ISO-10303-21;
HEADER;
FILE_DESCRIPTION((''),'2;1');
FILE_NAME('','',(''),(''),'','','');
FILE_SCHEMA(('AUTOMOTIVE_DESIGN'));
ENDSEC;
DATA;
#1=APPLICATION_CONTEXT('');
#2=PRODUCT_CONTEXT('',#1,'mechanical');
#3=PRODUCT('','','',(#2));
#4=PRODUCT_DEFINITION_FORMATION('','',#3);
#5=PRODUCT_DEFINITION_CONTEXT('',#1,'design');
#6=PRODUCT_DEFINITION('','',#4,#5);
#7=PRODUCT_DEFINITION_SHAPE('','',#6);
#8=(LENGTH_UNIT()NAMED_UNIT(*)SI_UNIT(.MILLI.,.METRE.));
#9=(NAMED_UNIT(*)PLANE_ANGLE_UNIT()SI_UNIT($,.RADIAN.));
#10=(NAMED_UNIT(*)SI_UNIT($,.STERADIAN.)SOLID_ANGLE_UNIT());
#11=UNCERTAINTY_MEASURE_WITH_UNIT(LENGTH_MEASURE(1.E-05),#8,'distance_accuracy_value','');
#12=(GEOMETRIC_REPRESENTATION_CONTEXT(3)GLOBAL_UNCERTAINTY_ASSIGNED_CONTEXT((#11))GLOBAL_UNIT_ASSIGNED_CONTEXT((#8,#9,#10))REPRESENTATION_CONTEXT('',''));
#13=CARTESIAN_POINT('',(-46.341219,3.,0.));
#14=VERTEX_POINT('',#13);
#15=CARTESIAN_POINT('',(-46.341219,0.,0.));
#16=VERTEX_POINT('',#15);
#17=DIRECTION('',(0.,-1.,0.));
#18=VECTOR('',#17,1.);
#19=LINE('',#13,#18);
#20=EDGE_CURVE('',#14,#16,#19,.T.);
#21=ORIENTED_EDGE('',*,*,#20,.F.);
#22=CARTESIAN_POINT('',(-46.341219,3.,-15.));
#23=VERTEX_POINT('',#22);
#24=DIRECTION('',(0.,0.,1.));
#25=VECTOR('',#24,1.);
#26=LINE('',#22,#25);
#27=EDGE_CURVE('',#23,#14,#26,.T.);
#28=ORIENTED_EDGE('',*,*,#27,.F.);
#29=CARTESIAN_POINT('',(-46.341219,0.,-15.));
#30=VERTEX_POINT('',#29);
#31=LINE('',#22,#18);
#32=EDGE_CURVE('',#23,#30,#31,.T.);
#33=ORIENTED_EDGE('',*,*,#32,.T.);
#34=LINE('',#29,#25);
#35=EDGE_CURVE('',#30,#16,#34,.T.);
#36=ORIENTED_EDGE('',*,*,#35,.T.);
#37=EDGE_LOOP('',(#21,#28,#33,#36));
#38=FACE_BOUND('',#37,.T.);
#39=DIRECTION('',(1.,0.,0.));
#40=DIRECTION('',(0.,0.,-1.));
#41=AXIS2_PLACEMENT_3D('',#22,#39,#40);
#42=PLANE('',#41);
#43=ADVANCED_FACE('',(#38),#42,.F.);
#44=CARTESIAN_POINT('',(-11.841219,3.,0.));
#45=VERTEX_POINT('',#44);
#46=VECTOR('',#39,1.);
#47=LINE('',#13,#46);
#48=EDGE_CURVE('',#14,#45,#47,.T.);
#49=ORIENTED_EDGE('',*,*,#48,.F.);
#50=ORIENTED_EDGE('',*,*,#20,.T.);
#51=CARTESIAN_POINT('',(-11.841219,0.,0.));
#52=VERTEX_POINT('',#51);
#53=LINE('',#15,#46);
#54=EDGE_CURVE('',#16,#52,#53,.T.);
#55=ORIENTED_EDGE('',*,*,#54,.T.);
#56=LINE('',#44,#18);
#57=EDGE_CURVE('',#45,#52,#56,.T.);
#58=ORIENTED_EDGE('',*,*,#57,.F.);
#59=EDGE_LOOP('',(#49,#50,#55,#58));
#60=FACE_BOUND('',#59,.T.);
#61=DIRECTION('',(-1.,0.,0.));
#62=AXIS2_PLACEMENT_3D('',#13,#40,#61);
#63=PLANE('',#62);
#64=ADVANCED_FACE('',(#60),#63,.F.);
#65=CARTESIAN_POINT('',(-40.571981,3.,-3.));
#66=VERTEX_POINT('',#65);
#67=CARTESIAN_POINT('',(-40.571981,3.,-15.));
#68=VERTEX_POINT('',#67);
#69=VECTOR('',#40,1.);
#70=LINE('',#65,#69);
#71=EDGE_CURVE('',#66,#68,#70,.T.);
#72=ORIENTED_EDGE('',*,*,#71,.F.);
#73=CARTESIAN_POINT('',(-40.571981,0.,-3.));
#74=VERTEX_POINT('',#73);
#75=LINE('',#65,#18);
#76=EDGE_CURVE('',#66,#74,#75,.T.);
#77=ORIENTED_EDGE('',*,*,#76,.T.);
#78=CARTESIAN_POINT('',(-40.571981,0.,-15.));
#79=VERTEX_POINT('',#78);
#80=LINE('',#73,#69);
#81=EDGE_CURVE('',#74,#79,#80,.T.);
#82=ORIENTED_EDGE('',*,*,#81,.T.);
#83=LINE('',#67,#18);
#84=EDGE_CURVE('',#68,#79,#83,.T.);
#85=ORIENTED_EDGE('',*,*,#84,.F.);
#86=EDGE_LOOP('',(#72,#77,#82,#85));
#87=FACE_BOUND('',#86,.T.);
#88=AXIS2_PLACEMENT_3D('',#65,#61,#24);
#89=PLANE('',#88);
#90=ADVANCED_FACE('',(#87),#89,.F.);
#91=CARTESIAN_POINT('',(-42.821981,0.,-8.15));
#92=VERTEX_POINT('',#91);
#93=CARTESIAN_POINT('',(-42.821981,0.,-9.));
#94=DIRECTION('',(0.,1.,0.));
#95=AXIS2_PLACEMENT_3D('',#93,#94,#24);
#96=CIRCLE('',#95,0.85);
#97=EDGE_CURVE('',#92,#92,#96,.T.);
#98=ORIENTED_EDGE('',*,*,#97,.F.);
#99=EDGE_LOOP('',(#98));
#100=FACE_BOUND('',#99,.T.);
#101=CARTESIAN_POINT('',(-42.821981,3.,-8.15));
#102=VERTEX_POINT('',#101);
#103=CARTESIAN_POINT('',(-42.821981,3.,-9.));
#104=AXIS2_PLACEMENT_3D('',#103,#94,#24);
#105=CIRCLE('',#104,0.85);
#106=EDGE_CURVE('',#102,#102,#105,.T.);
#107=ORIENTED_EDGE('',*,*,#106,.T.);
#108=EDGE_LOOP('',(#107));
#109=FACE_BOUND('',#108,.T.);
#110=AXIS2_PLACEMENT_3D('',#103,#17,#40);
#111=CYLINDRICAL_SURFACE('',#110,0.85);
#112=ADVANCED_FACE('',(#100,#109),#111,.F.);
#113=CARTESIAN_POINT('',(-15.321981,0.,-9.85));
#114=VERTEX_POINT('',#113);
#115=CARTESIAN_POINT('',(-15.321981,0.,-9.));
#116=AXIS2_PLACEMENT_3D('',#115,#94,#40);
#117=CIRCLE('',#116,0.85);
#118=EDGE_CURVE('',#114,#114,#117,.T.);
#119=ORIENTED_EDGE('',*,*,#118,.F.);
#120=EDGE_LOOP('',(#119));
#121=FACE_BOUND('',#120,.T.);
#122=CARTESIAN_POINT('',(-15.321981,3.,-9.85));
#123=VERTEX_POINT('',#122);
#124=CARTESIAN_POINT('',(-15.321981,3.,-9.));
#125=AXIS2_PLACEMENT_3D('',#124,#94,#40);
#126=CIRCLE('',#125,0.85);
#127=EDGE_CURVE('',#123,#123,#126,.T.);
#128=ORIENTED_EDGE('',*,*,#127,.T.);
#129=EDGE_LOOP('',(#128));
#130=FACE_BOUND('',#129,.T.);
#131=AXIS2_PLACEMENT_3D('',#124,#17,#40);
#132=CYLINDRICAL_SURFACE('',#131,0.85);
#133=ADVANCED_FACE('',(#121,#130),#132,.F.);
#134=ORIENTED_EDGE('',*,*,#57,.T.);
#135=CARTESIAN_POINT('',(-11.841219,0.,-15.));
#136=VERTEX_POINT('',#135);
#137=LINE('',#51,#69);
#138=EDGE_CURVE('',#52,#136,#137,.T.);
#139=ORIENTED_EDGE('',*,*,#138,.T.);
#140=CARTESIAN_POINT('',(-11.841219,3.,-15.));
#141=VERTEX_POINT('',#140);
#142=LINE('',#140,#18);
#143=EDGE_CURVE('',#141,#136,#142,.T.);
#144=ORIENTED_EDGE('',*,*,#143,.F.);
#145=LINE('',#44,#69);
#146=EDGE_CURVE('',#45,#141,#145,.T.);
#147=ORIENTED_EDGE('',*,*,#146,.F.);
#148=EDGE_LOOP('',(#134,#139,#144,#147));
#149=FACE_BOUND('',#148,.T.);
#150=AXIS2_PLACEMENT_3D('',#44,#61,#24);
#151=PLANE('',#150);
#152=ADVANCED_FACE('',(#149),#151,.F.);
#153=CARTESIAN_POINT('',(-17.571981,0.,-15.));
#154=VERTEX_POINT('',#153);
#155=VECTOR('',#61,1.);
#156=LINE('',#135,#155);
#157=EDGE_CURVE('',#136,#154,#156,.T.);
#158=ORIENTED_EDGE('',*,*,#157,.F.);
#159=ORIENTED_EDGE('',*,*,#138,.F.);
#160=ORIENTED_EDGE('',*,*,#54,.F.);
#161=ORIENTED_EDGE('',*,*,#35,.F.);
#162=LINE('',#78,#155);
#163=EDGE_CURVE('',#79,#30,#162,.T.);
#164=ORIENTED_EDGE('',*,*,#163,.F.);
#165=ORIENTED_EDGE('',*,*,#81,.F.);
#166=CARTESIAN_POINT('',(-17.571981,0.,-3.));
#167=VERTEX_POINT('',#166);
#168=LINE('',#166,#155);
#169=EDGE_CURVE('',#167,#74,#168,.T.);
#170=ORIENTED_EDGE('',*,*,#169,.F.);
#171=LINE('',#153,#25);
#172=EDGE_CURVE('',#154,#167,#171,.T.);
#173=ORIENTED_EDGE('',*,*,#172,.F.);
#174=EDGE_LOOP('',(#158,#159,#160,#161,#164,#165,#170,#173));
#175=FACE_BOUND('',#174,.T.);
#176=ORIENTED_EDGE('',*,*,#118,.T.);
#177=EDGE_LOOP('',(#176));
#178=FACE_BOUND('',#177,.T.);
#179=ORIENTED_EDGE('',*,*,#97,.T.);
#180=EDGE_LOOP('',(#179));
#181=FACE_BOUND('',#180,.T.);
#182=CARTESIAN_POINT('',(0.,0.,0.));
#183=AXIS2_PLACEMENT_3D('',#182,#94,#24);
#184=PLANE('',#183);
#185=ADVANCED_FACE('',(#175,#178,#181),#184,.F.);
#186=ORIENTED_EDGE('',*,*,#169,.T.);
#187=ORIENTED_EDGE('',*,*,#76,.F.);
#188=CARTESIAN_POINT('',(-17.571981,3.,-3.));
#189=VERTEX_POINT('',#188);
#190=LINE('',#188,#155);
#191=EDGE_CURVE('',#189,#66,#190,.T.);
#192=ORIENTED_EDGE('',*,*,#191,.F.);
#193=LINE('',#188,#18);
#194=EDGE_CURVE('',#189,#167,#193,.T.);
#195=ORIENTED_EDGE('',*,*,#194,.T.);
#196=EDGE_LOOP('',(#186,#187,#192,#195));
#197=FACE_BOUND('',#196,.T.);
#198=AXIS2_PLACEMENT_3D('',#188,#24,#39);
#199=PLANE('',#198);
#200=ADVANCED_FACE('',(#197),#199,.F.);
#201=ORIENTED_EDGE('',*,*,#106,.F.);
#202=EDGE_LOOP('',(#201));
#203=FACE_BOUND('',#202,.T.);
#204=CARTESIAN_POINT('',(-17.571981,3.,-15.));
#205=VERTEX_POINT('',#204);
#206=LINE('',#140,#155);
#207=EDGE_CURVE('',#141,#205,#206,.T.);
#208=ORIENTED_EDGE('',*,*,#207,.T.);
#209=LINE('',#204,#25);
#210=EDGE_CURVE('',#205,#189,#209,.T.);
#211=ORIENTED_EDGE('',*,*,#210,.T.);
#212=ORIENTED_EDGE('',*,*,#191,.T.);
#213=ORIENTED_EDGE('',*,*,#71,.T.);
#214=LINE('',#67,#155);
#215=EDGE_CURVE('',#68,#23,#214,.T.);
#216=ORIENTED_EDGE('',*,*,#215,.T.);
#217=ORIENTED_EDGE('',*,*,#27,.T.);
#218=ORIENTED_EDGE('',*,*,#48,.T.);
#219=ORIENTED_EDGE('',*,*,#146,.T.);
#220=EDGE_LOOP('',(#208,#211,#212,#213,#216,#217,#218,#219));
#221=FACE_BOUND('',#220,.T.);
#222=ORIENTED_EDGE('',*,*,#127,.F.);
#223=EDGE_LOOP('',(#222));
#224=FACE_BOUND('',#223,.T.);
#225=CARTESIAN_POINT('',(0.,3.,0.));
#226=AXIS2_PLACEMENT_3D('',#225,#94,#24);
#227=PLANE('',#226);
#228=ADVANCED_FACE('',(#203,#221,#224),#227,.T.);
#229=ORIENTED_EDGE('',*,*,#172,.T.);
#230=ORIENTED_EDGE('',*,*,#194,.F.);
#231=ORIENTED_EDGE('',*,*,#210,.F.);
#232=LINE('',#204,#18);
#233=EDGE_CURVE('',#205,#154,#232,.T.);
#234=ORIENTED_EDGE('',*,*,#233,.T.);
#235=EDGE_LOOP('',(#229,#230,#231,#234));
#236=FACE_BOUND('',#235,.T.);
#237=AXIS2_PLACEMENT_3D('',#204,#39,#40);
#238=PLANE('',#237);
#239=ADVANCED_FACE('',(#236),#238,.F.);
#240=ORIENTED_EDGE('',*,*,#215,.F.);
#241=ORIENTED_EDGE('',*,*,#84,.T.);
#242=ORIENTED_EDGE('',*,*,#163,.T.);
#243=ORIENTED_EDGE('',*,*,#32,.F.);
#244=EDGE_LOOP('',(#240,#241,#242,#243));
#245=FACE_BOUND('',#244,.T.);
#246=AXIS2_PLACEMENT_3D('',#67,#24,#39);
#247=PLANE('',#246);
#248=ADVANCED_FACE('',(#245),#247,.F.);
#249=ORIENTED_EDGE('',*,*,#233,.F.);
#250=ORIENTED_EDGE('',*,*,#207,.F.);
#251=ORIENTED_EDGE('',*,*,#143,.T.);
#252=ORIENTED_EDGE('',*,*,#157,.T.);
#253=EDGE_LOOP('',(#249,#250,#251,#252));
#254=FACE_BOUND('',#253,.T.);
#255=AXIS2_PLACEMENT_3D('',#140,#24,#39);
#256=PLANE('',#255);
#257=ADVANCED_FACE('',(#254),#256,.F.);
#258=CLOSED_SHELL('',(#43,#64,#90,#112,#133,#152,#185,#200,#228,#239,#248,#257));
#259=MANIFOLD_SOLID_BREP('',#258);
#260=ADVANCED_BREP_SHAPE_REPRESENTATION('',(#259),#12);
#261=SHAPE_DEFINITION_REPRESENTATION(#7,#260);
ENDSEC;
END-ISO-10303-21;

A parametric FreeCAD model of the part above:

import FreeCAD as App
import Part
import Sketcher
from FreeCAD import Vector


def add_polygon(sketch, points):
    """Adds a closed chain of lines whose ends are joined by coincident constraints."""
    first, n = sketch.GeometryCount, len(points)
    for a, b in zip(points, points[1:] + points[:1]):
        sketch.addGeometry(Part.LineSegment(App.Vector(*a, 0), App.Vector(*b, 0)), False)
    for i in range(n):
        sketch.addConstraint(Sketcher.Constraint("Coincident", first + i, 2, first + (i + 1) % n, 1))

doc = App.newDocument("Part")
body = doc.addObject("PartDesign::Body", "Body")

# Sketch on XZ plane
sketch1 = body.newObject("Sketcher::SketchObject", "Sketch")
sketch1.AttachmentSupport = (doc.getObject("XZ_Plane"), [""])
sketch1.MapMode = "FlatFace"
add_polygon(sketch1, [(-46.3, -15), (-46.3, 0), (-11.8, 0), (-11.8, -15), (-17.6, -15), (-17.6, -3), (-40.6, -3), (-40.6, -15)])  # lines 0-7
sketch1.addGeometry(Part.Circle(Vector(-42.8, -9, 0), Vector(0, 0, 1), 0.8), False)  # 8
sketch1.addGeometry(Part.Circle(Vector(-15.3, -9, 0), Vector(0, 0, 1), 0.8), False)  # 9
sketch1.addConstraint([
    Sketcher.Constraint("Vertical", 0),
    Sketcher.Constraint("Horizontal", 1),
    Sketcher.Constraint("Vertical", 2),
    Sketcher.Constraint("Horizontal", 3),
    Sketcher.Constraint("Vertical", 4),
    Sketcher.Constraint("Horizontal", 5),
    Sketcher.Constraint("Vertical", 6),
    Sketcher.Constraint("Horizontal", 7),
    Sketcher.Constraint("Equal", 8, 9),
    Sketcher.Constraint("PointOnObject", 0, 2, -1),
    Sketcher.Constraint("Horizontal", 8, 3, 9, 3),
    Sketcher.Constraint("Horizontal", 3, 2, 6, 2),
    Sketcher.Constraint("Diameter", 8, 1.7),
    Sketcher.Constraint("DistanceX", 5, 2, 5, 1, 23.0),
    Sketcher.Constraint("DistanceY", 0, 1, 0, 2, 15.0),
    Sketcher.Constraint("DistanceY", 4, 1, 4, 2, 12.0),
    Sketcher.Constraint("DistanceX", 1, 1, 1, 2, 34.5),
    Sketcher.Constraint("DistanceY", 8, 3, -1, 1, 9.0),
    Sketcher.Constraint("DistanceX", 8, 3, 9, 3, 27.5),
    Sketcher.Constraint("DistanceX", 3, 2, 9, 3, 2.25),
    Sketcher.Constraint("DistanceX", 3, 2, 3, 1, 5.730762),
    Sketcher.Constraint("DistanceX", 8, 3, -1, 1, 42.821981),
])
pad1 = body.newObject("PartDesign::Pad", "Pad")
pad1.Profile = sketch1
pad1.Length = 3
pad1.Reversed = True

doc.recompute()
